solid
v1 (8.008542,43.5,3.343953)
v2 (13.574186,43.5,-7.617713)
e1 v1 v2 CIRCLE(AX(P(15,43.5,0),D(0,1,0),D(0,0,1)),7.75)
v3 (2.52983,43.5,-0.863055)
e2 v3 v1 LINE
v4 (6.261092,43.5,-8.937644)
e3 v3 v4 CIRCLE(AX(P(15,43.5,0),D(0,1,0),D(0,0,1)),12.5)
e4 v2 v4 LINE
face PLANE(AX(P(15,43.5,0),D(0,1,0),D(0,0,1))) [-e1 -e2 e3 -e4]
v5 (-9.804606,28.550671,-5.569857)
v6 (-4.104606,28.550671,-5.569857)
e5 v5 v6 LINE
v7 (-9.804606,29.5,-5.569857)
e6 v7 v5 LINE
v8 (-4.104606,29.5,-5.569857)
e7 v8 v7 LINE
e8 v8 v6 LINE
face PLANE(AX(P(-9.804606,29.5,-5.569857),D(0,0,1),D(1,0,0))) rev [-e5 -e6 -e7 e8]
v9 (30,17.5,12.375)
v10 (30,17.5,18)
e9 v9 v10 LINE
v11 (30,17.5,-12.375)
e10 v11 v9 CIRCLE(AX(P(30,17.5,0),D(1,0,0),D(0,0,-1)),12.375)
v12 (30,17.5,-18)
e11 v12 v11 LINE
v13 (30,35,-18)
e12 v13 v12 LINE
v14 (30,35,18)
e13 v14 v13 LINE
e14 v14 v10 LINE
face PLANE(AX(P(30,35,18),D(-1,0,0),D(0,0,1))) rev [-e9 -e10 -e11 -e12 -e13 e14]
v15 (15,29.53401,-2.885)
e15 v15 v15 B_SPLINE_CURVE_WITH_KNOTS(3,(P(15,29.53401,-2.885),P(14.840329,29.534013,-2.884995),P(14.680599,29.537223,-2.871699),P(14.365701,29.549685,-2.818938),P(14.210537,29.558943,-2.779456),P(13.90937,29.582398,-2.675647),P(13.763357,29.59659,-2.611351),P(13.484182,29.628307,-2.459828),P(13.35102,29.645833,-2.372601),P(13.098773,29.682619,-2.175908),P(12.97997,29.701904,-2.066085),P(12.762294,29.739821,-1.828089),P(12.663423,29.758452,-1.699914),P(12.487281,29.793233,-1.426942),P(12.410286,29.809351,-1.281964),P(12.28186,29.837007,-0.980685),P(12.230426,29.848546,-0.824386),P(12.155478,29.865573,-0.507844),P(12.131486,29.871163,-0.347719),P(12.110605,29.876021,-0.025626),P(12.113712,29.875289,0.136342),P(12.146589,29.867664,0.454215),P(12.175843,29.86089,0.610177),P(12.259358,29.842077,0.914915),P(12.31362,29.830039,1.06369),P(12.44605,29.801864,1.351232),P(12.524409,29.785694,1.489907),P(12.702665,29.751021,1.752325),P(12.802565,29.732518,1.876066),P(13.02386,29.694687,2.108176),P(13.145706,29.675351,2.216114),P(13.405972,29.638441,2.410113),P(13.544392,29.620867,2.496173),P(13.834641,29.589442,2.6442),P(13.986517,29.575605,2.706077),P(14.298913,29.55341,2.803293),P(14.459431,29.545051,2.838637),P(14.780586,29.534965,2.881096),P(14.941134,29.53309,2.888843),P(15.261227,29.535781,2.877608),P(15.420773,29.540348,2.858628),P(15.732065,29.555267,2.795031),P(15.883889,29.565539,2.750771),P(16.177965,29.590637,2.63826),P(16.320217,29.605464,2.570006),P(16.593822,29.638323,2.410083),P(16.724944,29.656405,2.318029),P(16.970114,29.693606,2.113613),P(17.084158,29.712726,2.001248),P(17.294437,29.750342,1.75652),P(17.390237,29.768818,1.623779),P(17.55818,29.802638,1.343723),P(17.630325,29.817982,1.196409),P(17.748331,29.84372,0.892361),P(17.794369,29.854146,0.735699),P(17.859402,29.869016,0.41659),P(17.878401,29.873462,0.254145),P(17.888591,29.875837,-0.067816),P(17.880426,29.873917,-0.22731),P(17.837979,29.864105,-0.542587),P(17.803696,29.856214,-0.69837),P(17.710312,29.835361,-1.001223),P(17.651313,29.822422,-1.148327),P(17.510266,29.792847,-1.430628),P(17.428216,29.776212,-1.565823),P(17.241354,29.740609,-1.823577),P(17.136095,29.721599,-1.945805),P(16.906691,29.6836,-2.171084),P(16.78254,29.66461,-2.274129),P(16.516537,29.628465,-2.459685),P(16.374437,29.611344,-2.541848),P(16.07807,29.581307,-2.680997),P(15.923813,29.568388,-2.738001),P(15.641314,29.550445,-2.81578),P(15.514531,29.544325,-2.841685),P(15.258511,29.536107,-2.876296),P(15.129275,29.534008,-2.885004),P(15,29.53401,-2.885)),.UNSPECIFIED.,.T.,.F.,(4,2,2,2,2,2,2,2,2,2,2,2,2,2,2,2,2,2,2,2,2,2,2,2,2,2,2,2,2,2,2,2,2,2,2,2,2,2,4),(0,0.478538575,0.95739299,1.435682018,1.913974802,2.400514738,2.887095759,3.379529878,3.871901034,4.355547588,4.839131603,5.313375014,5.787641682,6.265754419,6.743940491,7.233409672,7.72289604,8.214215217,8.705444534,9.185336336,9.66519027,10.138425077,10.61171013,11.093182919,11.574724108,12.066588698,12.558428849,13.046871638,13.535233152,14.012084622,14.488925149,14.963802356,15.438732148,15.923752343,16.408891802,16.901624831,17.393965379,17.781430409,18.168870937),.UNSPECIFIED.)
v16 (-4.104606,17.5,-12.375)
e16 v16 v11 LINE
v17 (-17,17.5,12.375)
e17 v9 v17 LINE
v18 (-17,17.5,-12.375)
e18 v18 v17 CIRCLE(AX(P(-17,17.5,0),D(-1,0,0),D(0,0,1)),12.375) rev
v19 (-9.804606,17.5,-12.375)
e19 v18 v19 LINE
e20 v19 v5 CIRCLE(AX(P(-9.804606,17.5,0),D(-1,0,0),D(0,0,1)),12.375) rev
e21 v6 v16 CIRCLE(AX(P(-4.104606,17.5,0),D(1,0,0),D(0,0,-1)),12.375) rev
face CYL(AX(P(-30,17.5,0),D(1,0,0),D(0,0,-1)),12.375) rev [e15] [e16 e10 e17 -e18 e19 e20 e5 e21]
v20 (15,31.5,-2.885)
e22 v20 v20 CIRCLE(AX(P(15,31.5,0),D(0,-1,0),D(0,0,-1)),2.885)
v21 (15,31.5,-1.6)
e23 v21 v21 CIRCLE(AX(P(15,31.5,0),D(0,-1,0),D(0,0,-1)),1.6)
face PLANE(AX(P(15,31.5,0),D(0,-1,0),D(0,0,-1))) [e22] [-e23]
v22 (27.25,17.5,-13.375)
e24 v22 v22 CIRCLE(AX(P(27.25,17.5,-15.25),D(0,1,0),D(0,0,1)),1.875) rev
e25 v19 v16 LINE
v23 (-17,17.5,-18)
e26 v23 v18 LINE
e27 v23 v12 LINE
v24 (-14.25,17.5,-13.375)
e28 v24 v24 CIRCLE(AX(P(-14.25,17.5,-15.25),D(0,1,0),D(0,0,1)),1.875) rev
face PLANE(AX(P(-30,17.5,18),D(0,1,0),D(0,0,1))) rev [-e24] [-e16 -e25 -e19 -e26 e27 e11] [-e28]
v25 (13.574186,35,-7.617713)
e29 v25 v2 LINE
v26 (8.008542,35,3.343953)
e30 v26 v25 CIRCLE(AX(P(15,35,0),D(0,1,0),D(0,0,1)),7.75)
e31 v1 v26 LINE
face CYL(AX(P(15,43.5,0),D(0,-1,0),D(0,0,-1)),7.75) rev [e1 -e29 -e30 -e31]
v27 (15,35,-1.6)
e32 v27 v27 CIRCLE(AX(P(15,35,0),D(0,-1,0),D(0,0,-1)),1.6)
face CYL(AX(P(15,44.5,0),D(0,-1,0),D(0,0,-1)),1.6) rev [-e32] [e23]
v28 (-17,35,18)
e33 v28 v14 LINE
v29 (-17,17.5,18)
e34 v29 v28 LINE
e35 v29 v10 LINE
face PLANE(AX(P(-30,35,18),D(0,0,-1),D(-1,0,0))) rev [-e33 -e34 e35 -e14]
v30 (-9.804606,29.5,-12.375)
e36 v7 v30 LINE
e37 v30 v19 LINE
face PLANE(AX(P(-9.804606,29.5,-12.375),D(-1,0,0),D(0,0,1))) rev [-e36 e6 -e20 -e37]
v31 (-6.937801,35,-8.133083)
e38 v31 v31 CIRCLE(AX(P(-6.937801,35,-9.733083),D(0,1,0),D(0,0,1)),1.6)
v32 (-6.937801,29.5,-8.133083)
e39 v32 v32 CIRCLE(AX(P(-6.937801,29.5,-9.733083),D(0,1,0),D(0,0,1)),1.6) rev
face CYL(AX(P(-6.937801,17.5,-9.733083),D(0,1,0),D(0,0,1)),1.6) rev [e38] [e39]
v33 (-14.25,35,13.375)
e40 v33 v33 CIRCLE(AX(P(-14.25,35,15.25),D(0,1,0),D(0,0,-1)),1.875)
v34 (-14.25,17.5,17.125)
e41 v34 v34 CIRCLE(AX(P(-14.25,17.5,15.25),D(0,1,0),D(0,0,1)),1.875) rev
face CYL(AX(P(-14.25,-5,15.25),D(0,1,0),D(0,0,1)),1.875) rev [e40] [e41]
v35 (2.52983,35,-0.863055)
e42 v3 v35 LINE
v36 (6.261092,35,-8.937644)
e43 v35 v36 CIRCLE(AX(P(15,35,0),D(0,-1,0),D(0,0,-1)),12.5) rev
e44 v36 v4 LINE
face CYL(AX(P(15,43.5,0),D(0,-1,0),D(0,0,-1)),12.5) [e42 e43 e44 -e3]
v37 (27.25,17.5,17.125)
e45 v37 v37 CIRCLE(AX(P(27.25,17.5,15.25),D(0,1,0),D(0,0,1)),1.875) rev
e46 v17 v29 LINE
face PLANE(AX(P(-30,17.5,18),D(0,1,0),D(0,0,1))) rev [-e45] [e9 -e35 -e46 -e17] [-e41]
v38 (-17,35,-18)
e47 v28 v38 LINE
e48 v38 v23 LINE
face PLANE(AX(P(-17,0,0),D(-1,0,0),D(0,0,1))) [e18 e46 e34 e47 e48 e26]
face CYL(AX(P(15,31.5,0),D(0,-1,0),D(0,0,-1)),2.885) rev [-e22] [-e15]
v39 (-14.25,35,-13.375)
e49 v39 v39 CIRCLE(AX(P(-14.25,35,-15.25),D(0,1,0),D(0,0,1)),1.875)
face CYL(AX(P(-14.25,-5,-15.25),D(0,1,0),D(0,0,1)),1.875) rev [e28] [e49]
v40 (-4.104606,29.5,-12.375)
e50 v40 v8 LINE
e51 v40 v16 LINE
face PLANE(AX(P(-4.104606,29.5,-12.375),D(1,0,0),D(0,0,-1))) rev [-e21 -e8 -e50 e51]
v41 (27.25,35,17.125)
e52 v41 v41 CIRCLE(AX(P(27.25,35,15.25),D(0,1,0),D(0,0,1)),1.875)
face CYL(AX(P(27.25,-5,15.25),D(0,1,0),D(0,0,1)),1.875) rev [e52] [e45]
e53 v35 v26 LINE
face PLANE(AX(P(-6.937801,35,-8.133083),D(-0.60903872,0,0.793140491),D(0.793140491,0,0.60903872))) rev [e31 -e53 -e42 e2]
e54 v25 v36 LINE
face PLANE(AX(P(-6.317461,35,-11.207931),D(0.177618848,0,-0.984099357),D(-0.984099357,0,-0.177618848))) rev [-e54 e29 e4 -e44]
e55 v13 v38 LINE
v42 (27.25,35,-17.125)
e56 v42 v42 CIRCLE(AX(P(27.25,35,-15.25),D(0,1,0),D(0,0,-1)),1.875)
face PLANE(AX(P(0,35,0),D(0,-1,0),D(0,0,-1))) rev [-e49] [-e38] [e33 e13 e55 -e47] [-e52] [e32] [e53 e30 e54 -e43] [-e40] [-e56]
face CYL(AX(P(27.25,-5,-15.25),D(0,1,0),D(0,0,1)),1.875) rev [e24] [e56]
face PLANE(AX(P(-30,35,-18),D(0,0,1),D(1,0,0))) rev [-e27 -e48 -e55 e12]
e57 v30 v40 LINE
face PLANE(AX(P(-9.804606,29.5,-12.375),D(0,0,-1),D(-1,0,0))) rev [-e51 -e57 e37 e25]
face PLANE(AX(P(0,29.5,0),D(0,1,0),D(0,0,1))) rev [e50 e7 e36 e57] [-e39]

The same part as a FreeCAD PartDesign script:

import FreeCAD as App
import Part
import Sketcher

V = App.Vector


def add_polygon(sketch, points):
    """Adds a closed chain of lines whose ends are joined by coincident constraints."""
    first, n = sketch.GeometryCount, len(points)
    for a, b in zip(points, points[1:] + points[:1]):
        sketch.addGeometry(Part.LineSegment(App.Vector(*a, 0), App.Vector(*b, 0)), False)
    for i in range(n):
        sketch.addConstraint(Sketcher.Constraint("Coincident", first + i, 2, first + (i + 1) % n, 1))

doc = App.newDocument("Part")
body = doc.addObject("PartDesign::Body", "Body")

sketch1 = body.newObject("Sketcher::SketchObject", "Sketch")
sketch1.AttachmentSupport = (doc.getObject("XZ_Plane"), [""])
sketch1.MapMode = "FlatFace"
add_polygon(sketch1, [(-30, -18), (-30, 18), (30, 18), (30, -18)])
sketch1.addConstraint(Sketcher.Constraint("Vertical", 0))
sketch1.addConstraint(Sketcher.Constraint("Horizontal", 1))
sketch1.addConstraint(Sketcher.Constraint("Vertical", 2))
sketch1.addConstraint(Sketcher.Constraint("Horizontal", 3))
sketch1.addConstraint(Sketcher.Constraint("Symmetric", 0, 2, 2, 2, -1, 1))
sketch1.addConstraint(Sketcher.Constraint("DistanceX", 1, 1, 1, 2, 60.0))
sketch1.addConstraint(Sketcher.Constraint("DistanceY", 0, 1, 0, 2, 36.0))
pad1 = body.newObject("PartDesign::Pad", "Pad")
pad1.Profile = sketch1
pad1.Length = 35
pad1.Reversed = True

sketch2 = body.newObject("Sketcher::SketchObject", "Sketch001")
sketch2.AttachmentSupport = (doc.getObject("YZ_Plane"), [""])
sketch2.MapMode = "FlatFace"
sketch2.AttachmentOffset = App.Placement(V(0, 0, 30), App.Rotation())
sketch2.addGeometry(Part.Circle(V(18, 0, 0), V(0, 0, 1), 12), False)
sketch2.addConstraint(Sketcher.Constraint("PointOnObject", 0, 3, -1))
sketch2.addConstraint(Sketcher.Constraint("Diameter", 0, 24.75))
sketch2.addConstraint(Sketcher.Constraint("DistanceX", -1, 1, 0, 3, 17.5))
pocket1 = body.newObject("PartDesign::Pocket", "Pocket")
pocket1.Profile = sketch2
pocket1.Type = "ThroughAll"

sketch3 = body.newObject("Sketcher::SketchObject", "Sketch002")
sketch3.AttachmentSupport = (doc.getObject("XZ_Plane"), [""])
sketch3.MapMode = "FlatFace"
sketch3.AttachmentOffset = App.Placement(V(0, 0, -35), App.Rotation())
sketch3.addGeometry(Part.Circle(V(27.2, 15.2, 0), V(0, 0, 1), 1.9), False)
sketch3.addGeometry(Part.Circle(V(27.2, -15.2, 0), V(0, 0, 1), 1.9), False)
sketch3.addGeometry(Part.Circle(V(-14.2, 15.2, 0), V(0, 0, 1), 1.9), False)
sketch3.addGeometry(Part.Circle(V(-14.2, -15.2, 0), V(0, 0, 1), 1.9), False)
sketch3.addConstraint(Sketcher.Constraint("Equal", 0, 1))
sketch3.addConstraint(Sketcher.Constraint("Equal", 1, 2))
sketch3.addConstraint(Sketcher.Constraint("Equal", 2, 3))
sketch3.addConstraint(Sketcher.Constraint("Symmetric", 0, 3, 1, 3, -1))
sketch3.addConstraint(Sketcher.Constraint("Symmetric", 2, 3, 3, 3, -1))
sketch3.addConstraint(Sketcher.Constraint("Horizontal", 0, 3, 2, 3))
sketch3.addConstraint(Sketcher.Constraint("Diameter", 0, 3.75))
sketch3.addConstraint(Sketcher.Constraint("DistanceY", 1, 3, 0, 3, 30.5))
sketch3.addConstraint(Sketcher.Constraint("DistanceX", 2, 3, 0, 3, 41.5))
sketch3.addConstraint(Sketcher.Constraint("DistanceX", -1, 1, 0, 3, 27.25))
pocket2 = body.newObject("PartDesign::Pocket", "Pocket001")
pocket2.Profile = sketch3
pocket2.Length = 40
pocket2.Reversed = True

sketch4 = body.newObject("Sketcher::SketchObject", "Sketch003")
sketch4.AttachmentSupport = (doc.getObject("YZ_Plane"), [""])
sketch4.MapMode = "FlatFace"
sketch4.AttachmentOffset = App.Placement(V(0, 0, 30), App.Rotation())
add_polygon(sketch4, [(18, 18), (0, 18), (0, -18), (18, -18)])
sketch4.addConstraint(Sketcher.Constraint("Horizontal", 0))
sketch4.addConstraint(Sketcher.Constraint("Vertical", 1))
sketch4.addConstraint(Sketcher.Constraint("Horizontal", 2))
sketch4.addConstraint(Sketcher.Constraint("Vertical", 3))
sketch4.addConstraint(Sketcher.Constraint("Symmetric", 0, 2, 1, 2, -1, 1))
sketch4.addConstraint(Sketcher.Constraint("DistanceY", 1, 2, 1, 1, 36.0))
sketch4.addConstraint(Sketcher.Constraint("DistanceX", 0, 2, 0, 1, 17.5))
pocket3 = body.newObject("PartDesign::Pocket", "Pocket002")
pocket3.Profile = sketch4
pocket3.Type = "ThroughAll"

sketch5 = body.newObject("Sketcher::SketchObject", "Sketch004")
sketch5.AttachmentSupport = (doc.getObject("XZ_Plane"), [""])
sketch5.MapMode = "FlatFace"
sketch5.AttachmentOffset = App.Placement(V(0, 0, -17.5), App.Rotation())
sketch5.addGeometry(Part.Circle(V(15, 0, 0), V(0, 0, 1), 2.9), False)
sketch5.addConstraint(Sketcher.Constraint("PointOnObject", 0, 3, -1))
sketch5.addConstraint(Sketcher.Constraint("Diameter", 0, 5.77))
sketch5.addConstraint(Sketcher.Constraint("DistanceX", -1, 1, 0, 3, 15.0))
pocket4 = body.newObject("PartDesign::Pocket", "Pocket003")
pocket4.Profile = sketch5
pocket4.Length = 14

sketch6 = body.newObject("Sketcher::SketchObject", "Sketch005")
sketch6.AttachmentSupport = (doc.getObject("XZ_Plane"), [""])
sketch6.MapMode = "FlatFace"
sketch6.AttachmentOffset = App.Placement(V(0, 0, -31.5), App.Rotation())
sketch6.addGeometry(Part.Circle(V(15, 0, 0), V(0, 0, 1), 1.6), False)
sketch6.addConstraint(Sketcher.Constraint("PointOnObject", 0, 3, -1))
sketch6.addConstraint(Sketcher.Constraint("Diameter", 0, 3.2))
sketch6.addConstraint(Sketcher.Constraint("DistanceX", -1, 1, 0, 3, 15.0))
pocket5 = body.newObject("PartDesign::Pocket", "Pocket004")
pocket5.Profile = sketch6
pocket5.Length = 13

sketch7 = body.newObject("Sketcher::SketchObject", "Sketch006")
sketch7.AttachmentSupport = (doc.getObject("XZ_Plane"), [""])
sketch7.MapMode = "FlatFace"
sketch7.AttachmentOffset = App.Placement(V(0, 0, -35), App.Rotation())
sketch7.addGeometry(Part.Circle(V(-6.9, -9.7, 0), V(0, 0, 1), 1.6), False)
sketch7.addConstraint(Sketcher.Constraint("Diameter", 0, 3.2))
sketch7.addConstraint(Sketcher.Constraint("DistanceX", 0, 3, -1, 1, 6.937801))
sketch7.addConstraint(Sketcher.Constraint("DistanceY", 0, 3, -1, 1, 9.733083))
pocket6 = body.newObject("PartDesign::Pocket", "Pocket005")
pocket6.Profile = sketch7
pocket6.Type = "ThroughAll"
pocket6.Reversed = True

sketch8 = body.newObject("Sketcher::SketchObject", "Sketch007")
sketch8.AttachmentSupport = (doc.getObject("XZ_Plane"), [""])
sketch8.MapMode = "FlatFace"
sketch8.AttachmentOffset = App.Placement(V(0, 0, -17.5), App.Rotation())
add_polygon(sketch8, [(-10, -6), (-10, -12), (-4, -12), (-4, -6)])
sketch8.addConstraint(Sketcher.Constraint("Vertical", 0))
sketch8.addConstraint(Sketcher.Constraint("Horizontal", 1))
sketch8.addConstraint(Sketcher.Constraint("Vertical", 2))
sketch8.addConstraint(Sketcher.Constraint("Horizontal", 3))
sketch8.addConstraint(Sketcher.Constraint("DistanceX", 1, 1, 1, 2, 5.7))
sketch8.addConstraint(Sketcher.Constraint("DistanceY", 0, 2, -1, 1, 12.375))
sketch8.addConstraint(Sketcher.Constraint("DistanceY", 0, 2, 0, 1, 6.805143))
sketch8.addConstraint(Sketcher.Constraint("DistanceX", 0, 2, -1, 1, 9.804606))
pocket7 = body.newObject("PartDesign::Pocket", "Pocket006")
pocket7.Profile = sketch8
pocket7.Length = 12

sketch9 = body.newObject("Sketcher::SketchObject", "Sketch008")
sketch9.AttachmentSupport = (doc.getObject("XZ_Plane"), [""])
sketch9.MapMode = "FlatFace"
sketch9.AttachmentOffset = App.Placement(V(0, 0, -35), App.Rotation())
sketch9.addGeometry(Part.Circle(V(15, 0, 0), V(0, 0, 1), 12), False)
sketch9.addGeometry(Part.Circle(V(15, 0, 0), V(0, 0, 1), 8), False)
sketch9.addConstraint(Sketcher.Constraint("Coincident", 1, 3, 0, 3))
sketch9.addConstraint(Sketcher.Constraint("PointOnObject", 0, 3, -1))
sketch9.addConstraint(Sketcher.Constraint("Diameter", 0, 25.0))
sketch9.addConstraint(Sketcher.Constraint("Diameter", 1, 15.5))
sketch9.addConstraint(Sketcher.Constraint("DistanceX", -1, 1, 0, 3, 15.0))
pad2 = body.newObject("PartDesign::Pad", "Pad001")
pad2.Profile = sketch9
pad2.Length = 8.5
pad2.Reversed = True

sketch10 = body.newObject("Sketcher::SketchObject", "Sketch009")
sketch10.AttachmentSupport = (doc.getObject("XZ_Plane"), [""])
sketch10.MapMode = "FlatFace"
sketch10.AttachmentOffset = App.Placement(V(0, 0, -43.5), App.Rotation())
add_polygon(sketch10, [(-6.9, -8.1), (13.6, 7.6), (13.6, -7.6), (-6.3, -11.2)])
sketch10.addConstraint(Sketcher.Constraint("Vertical", 1))
sketch10.addConstraint(Sketcher.Constraint("Distance", 3, 3.1368))
sketch10.addConstraint(Sketcher.Constraint("DistanceX", 3, 2, -1, 1, 6.937801))
sketch10.addConstraint(Sketcher.Constraint("Distance", 0, 25.861732))
sketch10.addConstraint(Sketcher.Constraint("DistanceY", 1, 2, 1, 1, 15.235426))
sketch10.addConstraint(Sketcher.Constraint("DistanceX", 2, 2, -1, 1, 6.317461))
sketch10.addConstraint(Sketcher.Constraint("DistanceY", 2, 2, -1, 1, 11.207931))
sketch10.addConstraint(Sketcher.Constraint("DistanceY", 2, 2, 1, 2, 3.590218))
pocket8 = body.newObject("PartDesign::Pocket", "Pocket007")
pocket8.Profile = sketch10
pocket8.Length = 8.5
pocket8.Reversed = True

sketch11 = body.newObject("Sketcher::SketchObject", "Sketch010")
sketch11.AttachmentSupport = (doc.getObject("YZ_Plane"), [""])
sketch11.MapMode = "FlatFace"
sketch11.AttachmentOffset = App.Placement(V(0, 0, -30), App.Rotation())
add_polygon(sketch11, [(36, -20), (16, -20), (16, 20), (36, 20)])
sketch11.addConstraint(Sketcher.Constraint("Horizontal", 0))
sketch11.addConstraint(Sketcher.Constraint("Vertical", 1))
sketch11.addConstraint(Sketcher.Constraint("Horizontal", 2))
sketch11.addConstraint(Sketcher.Constraint("Vertical", 3))
sketch11.addConstraint(Sketcher.Constraint("DistanceY", -1, 1, 1, 2, 19.901499))
sketch11.addConstraint(Sketcher.Constraint("DistanceX", 0, 2, 0, 1, 20.483414))
sketch11.addConstraint(Sketcher.Constraint("DistanceY", 1, 1, 1, 2, 40.384913))
sketch11.addConstraint(Sketcher.Constraint("DistanceX", -1, 1, 0, 2, 15.656909))
pocket9 = body.newObject("PartDesign::Pocket", "Pocket008")
pocket9.Profile = sketch11
pocket9.Length = 13
pocket9.Reversed = True

doc.recompute()
